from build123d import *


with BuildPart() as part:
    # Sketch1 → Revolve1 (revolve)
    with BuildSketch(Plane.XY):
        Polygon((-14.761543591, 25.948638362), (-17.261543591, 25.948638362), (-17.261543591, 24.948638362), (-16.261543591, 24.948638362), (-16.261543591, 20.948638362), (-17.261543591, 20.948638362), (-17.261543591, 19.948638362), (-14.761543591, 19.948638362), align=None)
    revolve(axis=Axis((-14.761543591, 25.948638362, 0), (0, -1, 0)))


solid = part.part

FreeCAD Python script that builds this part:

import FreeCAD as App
import Part
import Sketcher


def add_polygon(sketch, points):
    """Adds a closed chain of lines whose ends are joined by coincident constraints."""
    first, n = sketch.GeometryCount, len(points)
    for a, b in zip(points, points[1:] + points[:1]):
        sketch.addGeometry(Part.LineSegment(App.Vector(*a, 0), App.Vector(*b, 0)), False)
    for i in range(n):
        sketch.addConstraint(Sketcher.Constraint("Coincident", first + i, 2, first + (i + 1) % n, 1))

doc = App.newDocument("Part")
body = doc.addObject("PartDesign::Body", "Body")

# Sketch on XY plane
sketch1 = doc.addObject("Sketcher::SketchObject", "Sketch")
body.addObject(sketch1)
sketch1.AttachmentSupport = (doc.XY_Plane, [""])
sketch1.MapMode = "FlatFace"
add_polygon(sketch1, [(-14.8, 25.9), (-17.3, 25.9), (-17.3, 24.9), (-16.3, 24.9), (-16.3, 20.9), (-17.3, 20.9), (-17.3, 19.9), (-14.8, 19.9)])  # lines 0-7
sketch1.addGeometry(Part.LineSegment(App.Vector(-14.8, 25.9, 0), App.Vector(-14.8, 19.9, 0)), True)  # axis
sketch1.addConstraint([
    Sketcher.Constraint("Horizontal", 0),
    Sketcher.Constraint("Vertical", 1),
    Sketcher.Constraint("Horizontal", 2),
    Sketcher.Constraint("Vertical", 3),
    Sketcher.Constraint("Horizontal", 4),
    Sketcher.Constraint("Vertical", 5),
    Sketcher.Constraint("Horizontal", 6),
    Sketcher.Constraint("Vertical", 7),
    Sketcher.Constraint("Vertical", 8),
    Sketcher.Constraint("Coincident", 8, 1, 7, 2),
    Sketcher.Constraint("Horizontal", 5, 2, 8, 2),
    Sketcher.Constraint("Vertical", 1, 2, 4, 2),
    Sketcher.Constraint("Equal", 4, 1),
    Sketcher.Constraint("Equal", 1, 5),
    Sketcher.Constraint("DistanceX", 2, 1, 2, 2, 1.0),
    Sketcher.Constraint("DistanceY", 3, 2, 3, 1, 4.0),
    Sketcher.Constraint("DistanceX", 0, 2, 0, 1, 2.5),
    Sketcher.Constraint("DistanceY", -1, 1, 0, 2, 25.948638),
    Sketcher.Constraint("DistanceX", 0, 2, -1, 1, 17.261544),
])
revolution = doc.addObject("PartDesign::Revolution", "Revolution")
body.addObject(revolution)
revolution.Profile = sketch1
revolution.ReferenceAxis = (sketch1, ["Axis0"])
revolution.Angle = 360

doc.recompute()
